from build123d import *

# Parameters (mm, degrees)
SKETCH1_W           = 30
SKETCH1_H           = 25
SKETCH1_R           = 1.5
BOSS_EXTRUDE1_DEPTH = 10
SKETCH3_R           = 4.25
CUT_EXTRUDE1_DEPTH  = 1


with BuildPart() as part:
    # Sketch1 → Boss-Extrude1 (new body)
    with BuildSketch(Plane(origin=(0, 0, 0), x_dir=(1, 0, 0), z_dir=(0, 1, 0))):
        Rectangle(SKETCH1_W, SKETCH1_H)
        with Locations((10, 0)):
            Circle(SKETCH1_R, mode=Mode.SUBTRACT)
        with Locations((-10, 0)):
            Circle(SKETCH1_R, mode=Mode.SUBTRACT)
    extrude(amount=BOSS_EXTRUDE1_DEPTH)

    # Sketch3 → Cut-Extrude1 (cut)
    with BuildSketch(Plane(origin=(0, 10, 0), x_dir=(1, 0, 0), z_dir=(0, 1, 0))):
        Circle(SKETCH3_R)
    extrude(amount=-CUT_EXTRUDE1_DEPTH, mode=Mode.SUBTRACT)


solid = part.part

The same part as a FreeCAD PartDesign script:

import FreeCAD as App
import Part
import Sketcher

doc = App.newDocument("Part")
body = doc.addObject("PartDesign::Body", "Body")

# Sketch on XZ plane
sketch1 = body.newObject("Sketcher::SketchObject", "Sketch")
sketch1.AttachmentSupport = (doc.getObject("XZ_Plane"), [""])
sketch1.MapMode = "FlatFace"
sketch1.addGeometry(Part.LineSegment(App.Vector(-15, -12.5, 0), App.Vector(-15, 12.5, 0)), False)
sketch1.addGeometry(Part.LineSegment(App.Vector(-15, 12.5, 0), App.Vector(15, 12.5, 0)), False)
sketch1.addGeometry(Part.LineSegment(App.Vector(15, 12.5, 0), App.Vector(15, -12.5, 0)), False)
sketch1.addGeometry(Part.LineSegment(App.Vector(15, -12.5, 0), App.Vector(-15, -12.5, 0)), False)
sketch1.addGeometry(Part.Circle(App.Vector(-10, 0, 0), App.Vector(0, 0, 1), 1.5), False)
sketch1.addGeometry(Part.Circle(App.Vector(10, 0, 0), App.Vector(0, 0, 1), 1.5), False)
sketch1.addConstraint(Sketcher.Constraint("Coincident", 0, 2, 1, 1))
sketch1.addConstraint(Sketcher.Constraint("Coincident", 1, 2, 2, 1))
sketch1.addConstraint(Sketcher.Constraint("Coincident", 2, 2, 3, 1))
sketch1.addConstraint(Sketcher.Constraint("Coincident", 3, 2, 0, 1))
sketch1.addConstraint(Sketcher.Constraint("Vertical", 0))
sketch1.addConstraint(Sketcher.Constraint("Horizontal", 1))
sketch1.addConstraint(Sketcher.Constraint("Vertical", 2))
sketch1.addConstraint(Sketcher.Constraint("Horizontal", 3))
sketch1.addConstraint(Sketcher.Constraint("Equal", 4, 5))
sketch1.addConstraint(Sketcher.Constraint("Symmetric", 4, 3, 5, 3, -1, 1))
sketch1.addConstraint(Sketcher.Constraint("Symmetric", 0, 2, 2, 2, -1, 1))
sketch1.addConstraint(Sketcher.Constraint("PointOnObject", 4, 3, -1))
sketch1.addConstraint(Sketcher.Constraint("Diameter", 4, 3.0))
sketch1.addConstraint(Sketcher.Constraint("DistanceX", 1, 1, 1, 2, 30.0))
sketch1.addConstraint(Sketcher.Constraint("DistanceY", 0, 1, 0, 2, 25.0))
sketch1.addConstraint(Sketcher.Constraint("DistanceX", 4, 3, -1, 1, 10.0))
pad1 = body.newObject("PartDesign::Pad", "Pad")
pad1.Profile = sketch1
pad1.Length = 10
pad1.Reversed = True

# Sketch on XZ plane
sketch2 = body.newObject("Sketcher::SketchObject", "Sketch001")
sketch2.AttachmentSupport = (doc.getObject("XZ_Plane"), [""])
sketch2.MapMode = "FlatFace"
sketch2.AttachmentOffset = App.Placement(App.Vector(0, 0, -10), App.Rotation())
sketch2.addGeometry(Part.Circle(App.Vector(0, 0, 0), App.Vector(0, 0, 1), 4.2), False)
sketch2.addConstraint(Sketcher.Constraint("Coincident", 0, 3, -1, 1))
sketch2.addConstraint(Sketcher.Constraint("Diameter", 0, 8.5))
pocket1 = body.newObject("PartDesign::Pocket", "Pocket")
pocket1.Profile = sketch2
pocket1.Length = 1
pocket1.Reversed = True

doc.recompute()
